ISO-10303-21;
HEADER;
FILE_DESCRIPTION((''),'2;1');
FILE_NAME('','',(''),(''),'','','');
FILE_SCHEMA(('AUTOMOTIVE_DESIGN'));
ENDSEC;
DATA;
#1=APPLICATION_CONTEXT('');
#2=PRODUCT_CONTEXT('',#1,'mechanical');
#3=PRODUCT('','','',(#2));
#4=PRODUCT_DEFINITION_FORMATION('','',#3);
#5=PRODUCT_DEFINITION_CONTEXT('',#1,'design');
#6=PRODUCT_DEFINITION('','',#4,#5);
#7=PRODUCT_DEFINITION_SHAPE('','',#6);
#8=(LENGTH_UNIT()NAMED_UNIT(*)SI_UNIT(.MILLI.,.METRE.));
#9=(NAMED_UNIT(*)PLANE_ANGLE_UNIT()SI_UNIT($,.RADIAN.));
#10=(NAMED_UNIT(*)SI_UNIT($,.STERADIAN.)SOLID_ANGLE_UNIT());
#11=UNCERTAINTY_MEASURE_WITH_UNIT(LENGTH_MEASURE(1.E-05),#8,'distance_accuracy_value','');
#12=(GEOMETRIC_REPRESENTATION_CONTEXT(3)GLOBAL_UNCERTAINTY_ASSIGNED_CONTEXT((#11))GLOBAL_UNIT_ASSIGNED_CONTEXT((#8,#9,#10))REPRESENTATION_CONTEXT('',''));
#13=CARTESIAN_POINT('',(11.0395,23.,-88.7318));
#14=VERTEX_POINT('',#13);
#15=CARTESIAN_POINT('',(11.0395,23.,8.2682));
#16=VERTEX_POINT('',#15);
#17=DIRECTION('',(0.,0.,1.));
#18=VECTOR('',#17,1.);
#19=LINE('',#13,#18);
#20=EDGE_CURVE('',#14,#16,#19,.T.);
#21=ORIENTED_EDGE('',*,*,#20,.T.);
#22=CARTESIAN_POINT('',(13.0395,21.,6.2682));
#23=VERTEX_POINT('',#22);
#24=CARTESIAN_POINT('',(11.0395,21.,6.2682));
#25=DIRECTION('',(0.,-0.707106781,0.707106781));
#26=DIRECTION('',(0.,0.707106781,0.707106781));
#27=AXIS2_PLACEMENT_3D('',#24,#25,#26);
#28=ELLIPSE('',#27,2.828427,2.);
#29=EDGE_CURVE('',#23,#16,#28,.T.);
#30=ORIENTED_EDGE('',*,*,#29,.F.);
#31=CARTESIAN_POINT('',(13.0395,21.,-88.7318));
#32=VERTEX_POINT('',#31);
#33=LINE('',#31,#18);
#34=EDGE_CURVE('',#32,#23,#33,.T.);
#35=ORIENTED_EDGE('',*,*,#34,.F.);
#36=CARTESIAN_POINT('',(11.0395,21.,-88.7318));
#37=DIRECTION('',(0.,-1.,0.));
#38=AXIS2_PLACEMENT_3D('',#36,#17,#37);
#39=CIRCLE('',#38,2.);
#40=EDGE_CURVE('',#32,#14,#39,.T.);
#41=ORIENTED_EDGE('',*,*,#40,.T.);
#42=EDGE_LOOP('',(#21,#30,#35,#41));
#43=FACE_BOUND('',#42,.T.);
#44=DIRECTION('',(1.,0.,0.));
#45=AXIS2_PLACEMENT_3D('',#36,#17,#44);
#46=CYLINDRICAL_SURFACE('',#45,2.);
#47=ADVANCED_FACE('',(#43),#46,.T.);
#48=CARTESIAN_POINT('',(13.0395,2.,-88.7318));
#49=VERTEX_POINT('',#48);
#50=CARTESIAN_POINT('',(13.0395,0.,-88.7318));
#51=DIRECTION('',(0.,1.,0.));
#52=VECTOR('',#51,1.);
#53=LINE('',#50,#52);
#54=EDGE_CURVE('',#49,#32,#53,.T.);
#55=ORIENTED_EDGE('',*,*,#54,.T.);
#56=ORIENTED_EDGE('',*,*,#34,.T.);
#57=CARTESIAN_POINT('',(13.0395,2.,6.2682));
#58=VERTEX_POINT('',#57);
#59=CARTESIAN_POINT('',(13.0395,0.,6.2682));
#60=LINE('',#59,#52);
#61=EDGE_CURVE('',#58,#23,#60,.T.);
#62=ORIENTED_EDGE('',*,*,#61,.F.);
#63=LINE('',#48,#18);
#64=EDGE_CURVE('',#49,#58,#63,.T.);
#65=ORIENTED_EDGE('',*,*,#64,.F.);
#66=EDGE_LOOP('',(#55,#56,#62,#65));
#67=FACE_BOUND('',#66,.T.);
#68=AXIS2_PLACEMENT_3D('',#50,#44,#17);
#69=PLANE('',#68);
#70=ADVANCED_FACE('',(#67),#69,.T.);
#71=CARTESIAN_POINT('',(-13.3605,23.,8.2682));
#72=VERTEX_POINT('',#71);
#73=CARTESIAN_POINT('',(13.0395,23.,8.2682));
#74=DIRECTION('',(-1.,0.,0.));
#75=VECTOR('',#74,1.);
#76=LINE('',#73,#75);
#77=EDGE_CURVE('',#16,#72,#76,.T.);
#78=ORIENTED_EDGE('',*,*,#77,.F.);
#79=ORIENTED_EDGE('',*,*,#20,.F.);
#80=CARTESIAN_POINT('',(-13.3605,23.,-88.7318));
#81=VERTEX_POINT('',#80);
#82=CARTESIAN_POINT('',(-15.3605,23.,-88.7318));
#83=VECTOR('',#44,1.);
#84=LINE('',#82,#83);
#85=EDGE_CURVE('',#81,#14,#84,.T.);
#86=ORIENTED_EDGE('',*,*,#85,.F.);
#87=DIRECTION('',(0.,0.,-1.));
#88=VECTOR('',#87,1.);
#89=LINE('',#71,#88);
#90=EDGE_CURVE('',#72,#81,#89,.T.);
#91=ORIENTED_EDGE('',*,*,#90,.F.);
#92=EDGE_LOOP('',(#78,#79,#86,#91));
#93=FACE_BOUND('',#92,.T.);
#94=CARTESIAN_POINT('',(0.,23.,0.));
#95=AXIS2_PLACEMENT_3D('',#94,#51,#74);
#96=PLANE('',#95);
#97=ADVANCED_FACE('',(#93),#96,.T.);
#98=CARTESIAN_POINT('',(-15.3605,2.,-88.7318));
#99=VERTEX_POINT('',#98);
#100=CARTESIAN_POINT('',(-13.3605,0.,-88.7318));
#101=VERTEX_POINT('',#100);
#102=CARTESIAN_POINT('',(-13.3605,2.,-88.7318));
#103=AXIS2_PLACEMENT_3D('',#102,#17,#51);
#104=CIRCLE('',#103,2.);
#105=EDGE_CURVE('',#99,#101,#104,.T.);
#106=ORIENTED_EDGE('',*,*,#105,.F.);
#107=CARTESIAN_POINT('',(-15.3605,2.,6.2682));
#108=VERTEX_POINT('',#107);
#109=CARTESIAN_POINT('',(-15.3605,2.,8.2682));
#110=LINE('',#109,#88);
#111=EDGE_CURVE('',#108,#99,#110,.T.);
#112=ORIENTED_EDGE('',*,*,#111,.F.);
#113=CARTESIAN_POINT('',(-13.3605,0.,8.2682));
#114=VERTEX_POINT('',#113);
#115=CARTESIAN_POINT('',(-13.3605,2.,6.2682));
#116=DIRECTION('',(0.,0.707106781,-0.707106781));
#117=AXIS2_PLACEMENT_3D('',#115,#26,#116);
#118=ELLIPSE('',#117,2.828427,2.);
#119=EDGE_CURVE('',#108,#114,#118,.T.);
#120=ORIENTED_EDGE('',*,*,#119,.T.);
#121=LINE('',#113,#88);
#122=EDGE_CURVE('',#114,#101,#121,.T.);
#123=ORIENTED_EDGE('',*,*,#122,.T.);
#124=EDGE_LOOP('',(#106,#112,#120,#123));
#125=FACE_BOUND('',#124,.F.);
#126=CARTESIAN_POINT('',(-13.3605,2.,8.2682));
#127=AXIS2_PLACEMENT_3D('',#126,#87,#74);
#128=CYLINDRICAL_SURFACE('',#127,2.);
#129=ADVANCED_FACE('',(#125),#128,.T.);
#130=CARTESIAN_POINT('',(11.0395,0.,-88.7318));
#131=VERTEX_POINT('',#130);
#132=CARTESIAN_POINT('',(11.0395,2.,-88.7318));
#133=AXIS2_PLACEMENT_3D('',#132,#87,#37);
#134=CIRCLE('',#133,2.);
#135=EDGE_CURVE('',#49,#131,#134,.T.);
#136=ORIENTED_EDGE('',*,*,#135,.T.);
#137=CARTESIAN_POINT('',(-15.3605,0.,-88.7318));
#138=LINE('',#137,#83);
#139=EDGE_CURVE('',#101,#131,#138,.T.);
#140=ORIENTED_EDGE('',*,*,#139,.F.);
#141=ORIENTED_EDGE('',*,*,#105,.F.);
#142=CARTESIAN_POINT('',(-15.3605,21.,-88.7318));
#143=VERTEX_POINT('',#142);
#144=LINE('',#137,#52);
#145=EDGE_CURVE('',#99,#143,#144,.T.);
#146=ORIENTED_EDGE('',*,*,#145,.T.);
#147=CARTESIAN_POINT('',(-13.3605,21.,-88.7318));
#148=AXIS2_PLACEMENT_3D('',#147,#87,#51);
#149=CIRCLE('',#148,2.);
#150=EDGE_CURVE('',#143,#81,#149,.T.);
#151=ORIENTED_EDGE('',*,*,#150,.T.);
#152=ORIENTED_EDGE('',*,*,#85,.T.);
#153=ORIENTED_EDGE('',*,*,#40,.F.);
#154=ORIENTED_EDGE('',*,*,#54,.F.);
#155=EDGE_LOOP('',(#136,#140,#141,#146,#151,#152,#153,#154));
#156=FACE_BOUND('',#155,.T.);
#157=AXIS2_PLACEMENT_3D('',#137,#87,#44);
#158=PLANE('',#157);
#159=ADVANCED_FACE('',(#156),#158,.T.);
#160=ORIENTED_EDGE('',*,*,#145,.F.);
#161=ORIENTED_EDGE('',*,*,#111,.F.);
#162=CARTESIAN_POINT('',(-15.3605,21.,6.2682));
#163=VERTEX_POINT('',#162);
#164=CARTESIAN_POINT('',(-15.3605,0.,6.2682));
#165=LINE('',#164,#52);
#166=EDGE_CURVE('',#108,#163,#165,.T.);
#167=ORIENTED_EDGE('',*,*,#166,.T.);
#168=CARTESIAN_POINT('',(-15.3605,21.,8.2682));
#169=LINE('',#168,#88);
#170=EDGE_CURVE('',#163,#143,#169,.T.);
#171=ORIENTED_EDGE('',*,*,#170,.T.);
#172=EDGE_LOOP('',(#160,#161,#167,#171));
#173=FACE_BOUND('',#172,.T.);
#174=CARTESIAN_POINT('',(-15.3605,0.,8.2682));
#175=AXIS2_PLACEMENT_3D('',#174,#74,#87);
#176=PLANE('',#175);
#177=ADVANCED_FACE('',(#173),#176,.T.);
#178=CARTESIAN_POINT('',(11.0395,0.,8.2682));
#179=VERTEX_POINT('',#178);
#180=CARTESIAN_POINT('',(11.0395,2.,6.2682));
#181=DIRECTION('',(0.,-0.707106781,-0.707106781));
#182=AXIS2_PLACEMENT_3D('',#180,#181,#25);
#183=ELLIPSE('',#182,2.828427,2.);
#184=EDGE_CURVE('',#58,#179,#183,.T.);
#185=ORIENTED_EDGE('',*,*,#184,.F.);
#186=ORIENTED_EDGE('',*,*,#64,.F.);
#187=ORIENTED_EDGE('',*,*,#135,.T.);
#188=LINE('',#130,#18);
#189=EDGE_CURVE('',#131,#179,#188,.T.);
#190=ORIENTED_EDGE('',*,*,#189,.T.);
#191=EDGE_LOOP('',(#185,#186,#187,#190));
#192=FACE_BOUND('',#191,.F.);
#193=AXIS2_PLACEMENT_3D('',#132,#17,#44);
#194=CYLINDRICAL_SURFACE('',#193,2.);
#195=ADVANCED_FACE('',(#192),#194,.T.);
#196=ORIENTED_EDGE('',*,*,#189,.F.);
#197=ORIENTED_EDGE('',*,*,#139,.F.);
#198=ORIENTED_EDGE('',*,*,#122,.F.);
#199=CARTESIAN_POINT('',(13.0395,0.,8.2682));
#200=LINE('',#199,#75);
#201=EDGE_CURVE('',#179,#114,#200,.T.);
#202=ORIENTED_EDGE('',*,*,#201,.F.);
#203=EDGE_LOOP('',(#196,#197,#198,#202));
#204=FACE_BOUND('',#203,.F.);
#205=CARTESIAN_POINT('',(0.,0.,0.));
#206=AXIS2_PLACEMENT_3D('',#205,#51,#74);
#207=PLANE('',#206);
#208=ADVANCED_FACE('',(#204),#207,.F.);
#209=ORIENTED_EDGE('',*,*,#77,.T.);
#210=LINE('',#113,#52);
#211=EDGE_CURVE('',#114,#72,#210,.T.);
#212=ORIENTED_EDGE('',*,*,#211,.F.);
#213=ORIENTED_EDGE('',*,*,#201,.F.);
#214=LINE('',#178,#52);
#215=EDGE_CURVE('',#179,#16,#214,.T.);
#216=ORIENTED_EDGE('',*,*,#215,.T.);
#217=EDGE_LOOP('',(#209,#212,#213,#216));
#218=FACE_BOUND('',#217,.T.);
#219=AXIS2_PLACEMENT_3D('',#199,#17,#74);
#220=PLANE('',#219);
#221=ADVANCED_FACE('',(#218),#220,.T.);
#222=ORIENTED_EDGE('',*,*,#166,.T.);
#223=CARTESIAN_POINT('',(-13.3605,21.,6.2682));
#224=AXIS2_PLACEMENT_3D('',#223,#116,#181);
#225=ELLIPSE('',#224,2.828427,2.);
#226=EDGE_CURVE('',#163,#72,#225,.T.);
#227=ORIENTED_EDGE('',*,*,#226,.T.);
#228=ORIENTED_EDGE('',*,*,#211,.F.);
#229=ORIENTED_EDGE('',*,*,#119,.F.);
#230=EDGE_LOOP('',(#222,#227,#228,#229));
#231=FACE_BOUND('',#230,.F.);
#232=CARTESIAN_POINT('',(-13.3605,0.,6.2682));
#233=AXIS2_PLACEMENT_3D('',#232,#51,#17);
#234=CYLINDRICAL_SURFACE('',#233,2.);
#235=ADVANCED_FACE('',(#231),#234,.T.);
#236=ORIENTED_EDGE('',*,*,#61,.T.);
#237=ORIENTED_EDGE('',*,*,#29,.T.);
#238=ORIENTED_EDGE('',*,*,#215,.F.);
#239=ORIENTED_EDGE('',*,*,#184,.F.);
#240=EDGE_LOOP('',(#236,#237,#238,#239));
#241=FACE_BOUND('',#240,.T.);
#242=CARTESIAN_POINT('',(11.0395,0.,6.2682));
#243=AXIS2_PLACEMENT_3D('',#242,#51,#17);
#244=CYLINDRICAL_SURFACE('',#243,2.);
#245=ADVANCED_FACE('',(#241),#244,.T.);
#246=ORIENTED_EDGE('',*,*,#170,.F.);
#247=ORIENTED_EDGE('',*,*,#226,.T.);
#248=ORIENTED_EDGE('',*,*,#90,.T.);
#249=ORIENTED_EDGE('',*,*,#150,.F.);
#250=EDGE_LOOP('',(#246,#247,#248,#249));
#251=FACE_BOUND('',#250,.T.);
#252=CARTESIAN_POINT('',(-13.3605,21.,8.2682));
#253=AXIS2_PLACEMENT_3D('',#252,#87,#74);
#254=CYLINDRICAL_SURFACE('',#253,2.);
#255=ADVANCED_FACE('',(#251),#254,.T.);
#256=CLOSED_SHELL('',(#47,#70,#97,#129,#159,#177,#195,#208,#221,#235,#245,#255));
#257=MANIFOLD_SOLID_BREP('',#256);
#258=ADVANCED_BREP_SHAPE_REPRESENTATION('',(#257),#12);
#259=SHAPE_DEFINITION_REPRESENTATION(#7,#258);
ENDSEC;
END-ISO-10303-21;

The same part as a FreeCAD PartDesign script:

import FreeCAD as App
import Part
import Sketcher
from FreeCAD import Vector


def edges_at(feature, points):
    """Names of the edges that pass closest to the given points."""
    edges = feature.Shape.Edges
    near = lambda p: min(range(len(edges)), key=lambda i: edges[i].distToShape(Part.Vertex(*p))[0])
    return sorted({f"Edge{near(p) + 1}" for p in points})

doc = App.newDocument("Part")
params = doc.addObject("Spreadsheet::Sheet", "Params")
for row, (alias, value) in enumerate([
    ("sketch1_height", "97 mm"),
    ("sketch1_width", "28.4 mm"),
    ("pad1_length", "23 mm"),
    ("fillet_radius", "2 mm"),
], start=1):
    params.set(f"A{row}", alias)
    params.set(f"B{row}", "=" + value)
    params.setAlias(f"B{row}", alias)

body = doc.addObject("PartDesign::Body", "Body")

sketch1 = doc.addObject("Sketcher::SketchObject", "Sketch")
body.addObject(sketch1)
sketch1.AttachmentSupport = (doc.XZ_Plane, [""])
sketch1.MapMode = "FlatFace"
sketch1.addGeometry(Part.LineSegment(Vector(-15, 8, 0), Vector(13, 8, 0)), False)
sketch1.addGeometry(Part.LineSegment(Vector(13, 8, 0), Vector(13, -89, 0)), False)
sketch1.addGeometry(Part.LineSegment(Vector(13, -89, 0), Vector(-15, -89, 0)), False)
sketch1.addGeometry(Part.LineSegment(Vector(-15, -89, 0), Vector(-15, 8, 0)), False)
sketch1.addConstraint(Sketcher.Constraint("Coincident", 0, 2, 1, 1))
sketch1.addConstraint(Sketcher.Constraint("Coincident", 1, 2, 2, 1))
sketch1.addConstraint(Sketcher.Constraint("Coincident", 2, 2, 3, 1))
sketch1.addConstraint(Sketcher.Constraint("Coincident", 3, 2, 0, 1))
sketch1.addConstraint(Sketcher.Constraint("Horizontal", 0))
sketch1.addConstraint(Sketcher.Constraint("Vertical", 1))
sketch1.addConstraint(Sketcher.Constraint("Horizontal", 2))
sketch1.addConstraint(Sketcher.Constraint("Vertical", 3))
sketch1.addConstraint(Sketcher.Constraint("DistanceY", 1, 2, 1, 1, 97.0))
sketch1.addConstraint(Sketcher.Constraint("DistanceX", 0, 1, 0, 2, 28.4))
sketch1.addConstraint(Sketcher.Constraint("DistanceX", -1, 1, 0, 2, 13.0395))
sketch1.addConstraint(Sketcher.Constraint("DistanceY", -1, 1, 0, 2, 8.2682))
sketch1.setExpression("Constraints[8]", "Params.sketch1_height")
sketch1.setExpression("Constraints[9]", "Params.sketch1_width")
pad1 = doc.addObject("PartDesign::Pad", "Pad")
body.addObject(pad1)
pad1.Profile = sketch1
pad1.setExpression("Length", "Params.pad1_length")
pad1.Reversed = True
doc.recompute()

fillet = doc.addObject("PartDesign::Fillet", "Fillet")
body.addObject(fillet)
fillet.Base = (pad1, edges_at(pad1, [
    (13.04, 23, -40.232),
    (13.04, 0, -40.232),
    (-15.361, 23, -40.232),
    (-15.361, 0, -40.232),
    (13.04, 11.5, 8.268),
    (-15.361, 11.5, 8.268),
]))
fillet.setExpression("Radius", "Params.fillet_radius")

doc.recompute()
